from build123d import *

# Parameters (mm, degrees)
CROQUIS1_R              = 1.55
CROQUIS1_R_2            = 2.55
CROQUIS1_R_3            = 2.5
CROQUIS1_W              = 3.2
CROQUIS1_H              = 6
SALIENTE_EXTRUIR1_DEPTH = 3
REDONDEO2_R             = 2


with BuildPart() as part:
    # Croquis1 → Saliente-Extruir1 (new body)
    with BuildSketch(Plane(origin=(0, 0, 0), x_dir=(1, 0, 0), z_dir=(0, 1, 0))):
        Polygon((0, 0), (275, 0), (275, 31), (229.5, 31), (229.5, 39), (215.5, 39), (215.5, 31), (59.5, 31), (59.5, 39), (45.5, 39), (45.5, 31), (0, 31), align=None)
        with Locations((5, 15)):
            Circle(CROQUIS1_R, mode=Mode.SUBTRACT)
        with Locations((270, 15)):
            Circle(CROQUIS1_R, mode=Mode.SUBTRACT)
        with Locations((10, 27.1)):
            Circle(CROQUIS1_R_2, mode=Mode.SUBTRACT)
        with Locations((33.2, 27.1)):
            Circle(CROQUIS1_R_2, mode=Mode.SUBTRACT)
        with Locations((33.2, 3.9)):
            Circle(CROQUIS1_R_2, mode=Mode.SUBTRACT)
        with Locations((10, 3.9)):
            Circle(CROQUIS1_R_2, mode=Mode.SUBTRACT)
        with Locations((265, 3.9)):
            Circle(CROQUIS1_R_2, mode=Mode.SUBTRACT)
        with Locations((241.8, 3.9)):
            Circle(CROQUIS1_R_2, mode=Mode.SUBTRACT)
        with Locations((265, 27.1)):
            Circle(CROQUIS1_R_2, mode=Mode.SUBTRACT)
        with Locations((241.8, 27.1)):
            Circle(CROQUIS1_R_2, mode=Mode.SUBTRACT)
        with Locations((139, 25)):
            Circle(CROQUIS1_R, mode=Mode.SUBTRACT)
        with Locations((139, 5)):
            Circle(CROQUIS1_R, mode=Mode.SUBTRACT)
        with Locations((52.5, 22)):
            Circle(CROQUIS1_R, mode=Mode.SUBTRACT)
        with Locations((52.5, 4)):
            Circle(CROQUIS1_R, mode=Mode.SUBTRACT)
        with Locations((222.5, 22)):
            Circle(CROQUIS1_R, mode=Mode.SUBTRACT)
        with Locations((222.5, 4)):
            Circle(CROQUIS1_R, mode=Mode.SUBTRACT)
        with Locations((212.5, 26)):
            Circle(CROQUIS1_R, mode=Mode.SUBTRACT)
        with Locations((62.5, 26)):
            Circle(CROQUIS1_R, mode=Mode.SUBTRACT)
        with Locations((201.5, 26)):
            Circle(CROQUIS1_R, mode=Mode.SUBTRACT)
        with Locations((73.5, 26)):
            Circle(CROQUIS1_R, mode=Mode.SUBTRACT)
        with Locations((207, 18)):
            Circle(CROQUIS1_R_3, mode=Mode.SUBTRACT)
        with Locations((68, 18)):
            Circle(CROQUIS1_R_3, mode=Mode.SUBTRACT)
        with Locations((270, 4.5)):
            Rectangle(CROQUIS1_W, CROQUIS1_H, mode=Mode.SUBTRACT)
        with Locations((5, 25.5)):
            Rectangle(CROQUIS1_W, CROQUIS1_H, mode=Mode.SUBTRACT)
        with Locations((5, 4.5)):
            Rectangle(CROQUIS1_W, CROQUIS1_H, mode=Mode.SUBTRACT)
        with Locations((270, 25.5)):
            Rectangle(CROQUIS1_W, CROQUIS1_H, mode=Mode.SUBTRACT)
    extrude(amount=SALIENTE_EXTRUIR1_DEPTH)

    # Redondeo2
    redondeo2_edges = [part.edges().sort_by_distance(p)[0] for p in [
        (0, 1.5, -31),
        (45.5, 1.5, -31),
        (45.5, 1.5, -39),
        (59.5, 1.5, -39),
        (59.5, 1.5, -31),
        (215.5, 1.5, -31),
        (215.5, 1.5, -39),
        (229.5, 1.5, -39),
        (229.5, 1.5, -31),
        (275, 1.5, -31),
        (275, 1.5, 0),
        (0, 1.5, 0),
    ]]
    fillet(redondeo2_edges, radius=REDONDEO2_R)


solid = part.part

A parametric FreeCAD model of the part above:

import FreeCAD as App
import Part
import Sketcher

V = App.Vector


def edges_at(feature, points):
    """Names of the edges that pass closest to the given points."""
    edges = feature.Shape.Edges
    near = lambda p: min(range(len(edges)), key=lambda i: edges[i].distToShape(Part.Vertex(*p))[0])
    return sorted({f"Edge{near(p) + 1}" for p in points})


def add_polygon(sketch, points):
    """Adds a closed chain of lines whose ends are joined by coincident constraints."""
    first, n = sketch.GeometryCount, len(points)
    for a, b in zip(points, points[1:] + points[:1]):
        sketch.addGeometry(Part.LineSegment(App.Vector(*a, 0), App.Vector(*b, 0)), False)
    for i in range(n):
        sketch.addConstraint(Sketcher.Constraint("Coincident", first + i, 2, first + (i + 1) % n, 1))

doc = App.newDocument("Part")
params = doc.addObject("Spreadsheet::Sheet", "Params")
for row, (alias, value) in enumerate([
    ("sketch1_diameter", "5 mm"),
    ("sketch1_diameter2", "5.1 mm"),
    ("sketch1_diameter3", "3.1 mm"),
    ("sketch1_width", "275 mm"),
    ("sketch1_width2", "14 mm"),
    ("pad1_length", "3 mm"),
    ("fillet_radius", "2 mm"),
], start=1):
    params.set(f"A{row}", alias)
    params.set(f"B{row}", "=" + value)
    params.setAlias(f"B{row}", alias)

body = doc.addObject("PartDesign::Body", "Body")

# Sketch on XZ plane
sketch1 = doc.addObject("Sketcher::SketchObject", "Sketch")
body.addObject(sketch1)
sketch1.AttachmentSupport = (doc.XZ_Plane, [""])
sketch1.MapMode = "FlatFace"
add_polygon(sketch1, [(0, 0), (275, 0), (275, -31), (229.5, -31), (229.5, -39), (215.5, -39), (215.5, -31), (59.5, -31), (59.5, -39), (45.5, -39), (45.5, -31), (0, -31)])  # lines 0-11
sketch1.addGeometry(Part.Circle(V(10, -3.9, 0), V(0, 0, 1), 2.5), False)  # 12
add_polygon(sketch1, [(6.6, -1.5), (3.4, -1.5), (3.4, -7.5), (6.6, -7.5)])  # lines 13-16
sketch1.addGeometry(Part.Circle(V(33.2, -3.9, 0), V(0, 0, 1), 2.5), False)  # 17
sketch1.addGeometry(Part.Circle(V(52.5, -4, 0), V(0, 0, 1), 1.6), False)  # 18
sketch1.addGeometry(Part.Circle(V(5, -15, 0), V(0, 0, 1), 1.6), False)  # 19
sketch1.addGeometry(Part.Circle(V(139, -5, 0), V(0, 0, 1), 1.6), False)  # 20
sketch1.addGeometry(Part.Circle(V(222.5, -4, 0), V(0, 0, 1), 1.6), False)  # 21
sketch1.addGeometry(Part.Circle(V(241.8, -3.9, 0), V(0, 0, 1), 2.5), False)  # 22
sketch1.addGeometry(Part.Circle(V(265, -3.9, 0), V(0, 0, 1), 2.5), False)  # 23
add_polygon(sketch1, [(271.6, -1.5), (268.4, -1.5), (268.4, -7.5), (271.6, -7.5)])  # lines 24-27
sketch1.addGeometry(Part.Circle(V(270, -15, 0), V(0, 0, 1), 1.6), False)  # 28
sketch1.addGeometry(Part.Circle(V(68, -18, 0), V(0, 0, 1), 2.5), False)  # 29
sketch1.addGeometry(Part.Circle(V(52.5, -22, 0), V(0, 0, 1), 1.6), False)  # 30
add_polygon(sketch1, [(6.6, -22.5), (3.4, -22.5), (3.4, -28.5), (6.6, -28.5)])  # lines 31-34
sketch1.addGeometry(Part.Circle(V(62.5, -26, 0), V(0, 0, 1), 1.6), False)  # 35
sketch1.addGeometry(Part.Circle(V(10, -27.1, 0), V(0, 0, 1), 2.5), False)  # 36
sketch1.addGeometry(Part.Circle(V(33.2, -27.1, 0), V(0, 0, 1), 2.5), False)  # 37
sketch1.addGeometry(Part.Circle(V(73.5, -26, 0), V(0, 0, 1), 1.6), False)  # 38
sketch1.addGeometry(Part.Circle(V(207, -18, 0), V(0, 0, 1), 2.5), False)  # 39
sketch1.addGeometry(Part.Circle(V(222.5, -22, 0), V(0, 0, 1), 1.6), False)  # 40
sketch1.addGeometry(Part.Circle(V(139, -25, 0), V(0, 0, 1), 1.6), False)  # 41
sketch1.addGeometry(Part.Circle(V(201.5, -26, 0), V(0, 0, 1), 1.6), False)  # 42
sketch1.addGeometry(Part.Circle(V(212.5, -26, 0), V(0, 0, 1), 1.6), False)  # 43
add_polygon(sketch1, [(271.6, -22.5), (268.4, -22.5), (268.4, -28.5), (271.6, -28.5)])  # lines 44-47
sketch1.addGeometry(Part.Circle(V(241.8, -27.1, 0), V(0, 0, 1), 2.5), False)  # 48
sketch1.addGeometry(Part.Circle(V(265, -27.1, 0), V(0, 0, 1), 2.5), False)  # 49
sketch1.addConstraint([
    Sketcher.Constraint("Horizontal", 0),
    Sketcher.Constraint("Vertical", 1),
    Sketcher.Constraint("Horizontal", 2),
    Sketcher.Constraint("Vertical", 3),
    Sketcher.Constraint("Horizontal", 4),
    Sketcher.Constraint("Vertical", 5),
    Sketcher.Constraint("Horizontal", 6),
    Sketcher.Constraint("Vertical", 7),
    Sketcher.Constraint("Horizontal", 8),
    Sketcher.Constraint("Vertical", 9),
    Sketcher.Constraint("Horizontal", 10),
    Sketcher.Constraint("Vertical", 11),
    Sketcher.Constraint("Horizontal", 13),
    Sketcher.Constraint("Vertical", 14),
    Sketcher.Constraint("Horizontal", 15),
    Sketcher.Constraint("Vertical", 16),
    Sketcher.Constraint("Horizontal", 24),
    Sketcher.Constraint("Vertical", 25),
    Sketcher.Constraint("Horizontal", 26),
    Sketcher.Constraint("Vertical", 27),
    Sketcher.Constraint("Horizontal", 31),
    Sketcher.Constraint("Vertical", 32),
    Sketcher.Constraint("Horizontal", 33),
    Sketcher.Constraint("Vertical", 34),
    Sketcher.Constraint("Horizontal", 44),
    Sketcher.Constraint("Vertical", 45),
    Sketcher.Constraint("Horizontal", 46),
    Sketcher.Constraint("Vertical", 47),
    Sketcher.Constraint("Coincident", 11, 2, -1, 1),
    Sketcher.Constraint("Equal", 12, 17),
    Sketcher.Constraint("Equal", 18, 19),
    Sketcher.Constraint("Equal", 19, 20),
    Sketcher.Constraint("Equal", 20, 21),
    Sketcher.Constraint("Equal", 17, 22),
    Sketcher.Constraint("Equal", 22, 23),
    Sketcher.Constraint("Equal", 21, 28),
    Sketcher.Constraint("Equal", 28, 30),
    Sketcher.Constraint("Equal", 30, 35),
    Sketcher.Constraint("Equal", 23, 36),
    Sketcher.Constraint("Equal", 36, 37),
    Sketcher.Constraint("Equal", 35, 38),
    Sketcher.Constraint("Equal", 29, 39),
    Sketcher.Constraint("Equal", 38, 40),
    Sketcher.Constraint("Equal", 40, 41),
    Sketcher.Constraint("Equal", 41, 42),
    Sketcher.Constraint("Equal", 42, 43),
    Sketcher.Constraint("Equal", 37, 48),
    Sketcher.Constraint("Equal", 48, 49),
    Sketcher.Constraint("Horizontal", 12, 3, 17, 3),
    Sketcher.Constraint("Horizontal", 18, 3, 21, 3),
    Sketcher.Constraint("Horizontal", 17, 3, 22, 3),
    Sketcher.Constraint("Horizontal", 22, 3, 23, 3),
    Sketcher.Constraint("Horizontal", 19, 3, 28, 3),
    Sketcher.Constraint("Horizontal", 36, 3, 37, 3),
    Sketcher.Constraint("Horizontal", 35, 3, 38, 3),
    Sketcher.Constraint("Horizontal", 29, 3, 39, 3),
    Sketcher.Constraint("Horizontal", 30, 3, 40, 3),
    Sketcher.Constraint("Horizontal", 38, 3, 42, 3),
    Sketcher.Constraint("Horizontal", 42, 3, 43, 3),
    Sketcher.Constraint("Horizontal", 37, 3, 48, 3),
    Sketcher.Constraint("Horizontal", 48, 3, 49, 3),
    Sketcher.Constraint("Horizontal", 2, 2, 5, 2),
    Sketcher.Constraint("Horizontal", 4, 2, 7, 2),
    Sketcher.Constraint("Horizontal", 6, 2, 9, 2),
    Sketcher.Constraint("Horizontal", 16, 2, 24, 2),
    Sketcher.Constraint("Horizontal", 15, 2, 25, 2),
    Sketcher.Constraint("Horizontal", 34, 2, 44, 2),
    Sketcher.Constraint("Horizontal", 33, 2, 45, 2),
    Sketcher.Constraint("Vertical", 18, 3, 30, 3),
    Sketcher.Constraint("Vertical", 12, 3, 36, 3),
    Sketcher.Constraint("Vertical", 17, 3, 37, 3),
    Sketcher.Constraint("Vertical", 21, 3, 40, 3),
    Sketcher.Constraint("Vertical", 20, 3, 41, 3),
    Sketcher.Constraint("Vertical", 22, 3, 48, 3),
    Sketcher.Constraint("Vertical", 23, 3, 49, 3),
    Sketcher.Constraint("Vertical", 14, 2, 31, 2),
    Sketcher.Constraint("Vertical", 16, 2, 33, 2),
    Sketcher.Constraint("Vertical", 25, 2, 44, 2),
    Sketcher.Constraint("Vertical", 27, 2, 46, 2),
    Sketcher.Constraint("Equal", 4, 8),
    Sketcher.Constraint("Equal", 2, 10),
    Sketcher.Constraint("Equal", 15, 24),
    Sketcher.Constraint("Equal", 27, 32),
    Sketcher.Constraint("Diameter", 29, 5.0),
    Sketcher.Constraint("Diameter", 12, 5.1),
    Sketcher.Constraint("Diameter", 18, 3.1),
    Sketcher.Constraint("DistanceX", 0, 1, 0, 2, 275.0),
    Sketcher.Constraint("DistanceX", 4, 2, 4, 1, 14.0),
    Sketcher.Constraint("DistanceX", 6, 2, 6, 1, 156.0),
    Sketcher.Constraint("DistanceY", 1, 2, 1, 1, 31.0),
    Sketcher.Constraint("DistanceY", 3, 2, 3, 1, 8.0),
    Sketcher.Constraint("DistanceY", 14, 2, 14, 1, 6.0),
    Sketcher.Constraint("DistanceX", 13, 2, 13, 1, 3.2),
    Sketcher.Constraint("DistanceX", -1, 1, 12, 3, 10.0),
    Sketcher.Constraint("DistanceY", 18, 3, -1, 1, 4.0),
    Sketcher.Constraint("DistanceX", -1, 1, 19, 3, 5.0),
    Sketcher.Constraint("DistanceY", 19, 3, -1, 1, 15.0),
    Sketcher.Constraint("DistanceX", -1, 1, 20, 3, 139.0),
    Sketcher.Constraint("DistanceY", 20, 3, -1, 1, 5.0),
    Sketcher.Constraint("DistanceX", -1, 1, 23, 3, 265.0),
    Sketcher.Constraint("DistanceX", -1, 1, 28, 3, 270.0),
    Sketcher.Constraint("DistanceX", -1, 1, 29, 3, 68.0),
    Sketcher.Constraint("DistanceY", 29, 3, -1, 1, 18.0),
    Sketcher.Constraint("DistanceY", 30, 3, -1, 1, 22.0),
    Sketcher.Constraint("DistanceY", 35, 3, -1, 1, 26.0),
    Sketcher.Constraint("DistanceX", -1, 1, 39, 3, 207.0),
    Sketcher.Constraint("DistanceY", 41, 3, -1, 1, 25.0),
    Sketcher.Constraint("DistanceX", 18, 3, 21, 3, 170.0),
    Sketcher.Constraint("DistanceX", 30, 3, 35, 3, 10.0),
    Sketcher.Constraint("DistanceX", 35, 3, 38, 3, 11.0),
    Sketcher.Constraint("DistanceX", 42, 3, 40, 3, 21.0),
    Sketcher.Constraint("DistanceX", 43, 3, 40, 3, 10.0),
    Sketcher.Constraint("DistanceX", 40, 3, 2, 2, 7.0),
    Sketcher.Constraint("DistanceY", 31, 2, 14, 2, 15.0),
    Sketcher.Constraint("DistanceY", 12, 3, -1, 1, 3.9),
    Sketcher.Constraint("DistanceX", -1, 1, 17, 3, 33.2),
    Sketcher.Constraint("DistanceX", -1, 1, 22, 3, 241.8),
    Sketcher.Constraint("DistanceY", 36, 3, -1, 1, 27.1),
    Sketcher.Constraint("DistanceX", -1, 1, 13, 2, 3.4),
    Sketcher.Constraint("DistanceY", 13, 2, -1, 1, 1.5),
    Sketcher.Constraint("DistanceX", -1, 1, 24, 2, 268.4),
])
sketch1.setExpression("Constraints[111]", "Params.sketch1_diameter")
sketch1.setExpression("Constraints[112]", "Params.sketch1_diameter2")
sketch1.setExpression("Constraints[113]", "Params.sketch1_diameter3")
sketch1.setExpression("Constraints[114]", "Params.sketch1_width")
sketch1.setExpression("Constraints[115]", "Params.sketch1_width2")
pad1 = doc.addObject("PartDesign::Pad", "Pad")
body.addObject(pad1)
pad1.Profile = sketch1
pad1.setExpression("Length", "Params.pad1_length")
pad1.Reversed = True
doc.recompute()

fillet = doc.addObject("PartDesign::Fillet", "Fillet")
body.addObject(fillet)
fillet.Base = (pad1, edges_at(pad1, [
    (0, 1.5, -31),
    (45.5, 1.5, -31),
    (45.5, 1.5, -39),
    (59.5, 1.5, -39),
    (59.5, 1.5, -31),
    (215.5, 1.5, -31),
    (215.5, 1.5, -39),
    (229.5, 1.5, -39),
    (229.5, 1.5, -31),
    (275, 1.5, -31),
    (275, 1.5, 0),
    (0, 1.5, 0),
]))
fillet.setExpression("Radius", "Params.fillet_radius")

doc.recompute()
